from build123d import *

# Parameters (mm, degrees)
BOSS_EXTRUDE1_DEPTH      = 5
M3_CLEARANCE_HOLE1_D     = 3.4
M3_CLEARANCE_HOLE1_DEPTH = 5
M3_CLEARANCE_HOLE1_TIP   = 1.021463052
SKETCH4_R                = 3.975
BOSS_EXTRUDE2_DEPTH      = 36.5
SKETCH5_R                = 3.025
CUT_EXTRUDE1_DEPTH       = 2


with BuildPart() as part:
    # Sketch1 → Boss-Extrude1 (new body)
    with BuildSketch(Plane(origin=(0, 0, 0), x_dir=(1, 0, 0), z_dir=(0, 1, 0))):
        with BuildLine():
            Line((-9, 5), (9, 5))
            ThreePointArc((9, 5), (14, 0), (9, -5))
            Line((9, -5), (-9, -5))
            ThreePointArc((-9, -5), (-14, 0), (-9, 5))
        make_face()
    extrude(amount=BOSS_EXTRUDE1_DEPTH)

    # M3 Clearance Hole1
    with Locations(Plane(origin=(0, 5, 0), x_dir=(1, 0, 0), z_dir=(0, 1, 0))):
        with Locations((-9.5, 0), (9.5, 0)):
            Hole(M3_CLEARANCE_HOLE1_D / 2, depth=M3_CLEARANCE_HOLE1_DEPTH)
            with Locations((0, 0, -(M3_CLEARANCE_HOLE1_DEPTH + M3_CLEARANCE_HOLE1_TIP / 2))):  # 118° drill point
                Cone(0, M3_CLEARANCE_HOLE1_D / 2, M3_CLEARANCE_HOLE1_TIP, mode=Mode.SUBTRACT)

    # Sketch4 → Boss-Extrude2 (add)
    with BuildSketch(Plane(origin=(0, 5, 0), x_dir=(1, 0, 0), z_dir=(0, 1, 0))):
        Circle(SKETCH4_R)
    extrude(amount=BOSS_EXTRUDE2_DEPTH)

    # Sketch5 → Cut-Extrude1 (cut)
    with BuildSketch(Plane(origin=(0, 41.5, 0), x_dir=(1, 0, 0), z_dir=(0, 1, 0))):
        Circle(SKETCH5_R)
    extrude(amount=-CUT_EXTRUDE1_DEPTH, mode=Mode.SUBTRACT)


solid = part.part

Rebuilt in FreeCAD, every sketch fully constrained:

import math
import FreeCAD as App
import Part
import Sketcher

doc = App.newDocument("Part")
body = doc.addObject("PartDesign::Body", "Body")

# Sketch on XZ plane
sketch1 = doc.addObject("Sketcher::SketchObject", "Sketch")
body.addObject(sketch1)
sketch1.AttachmentSupport = (doc.XZ_Plane, [""])
sketch1.MapMode = "FlatFace"
sketch1.addGeometry(Part.LineSegment(App.Vector(9, -5, 0), App.Vector(-9, -5, 0)), False)
sketch1.addGeometry(Part.ArcOfCircle(Part.Circle(App.Vector(-9, 0, 0), App.Vector(0, 0, 1), 5), math.radians(90), math.radians(270)), False)
sketch1.addGeometry(Part.LineSegment(App.Vector(-9, 5, 0), App.Vector(9, 5, 0)), False)
sketch1.addGeometry(Part.ArcOfCircle(Part.Circle(App.Vector(9, 0, 0), App.Vector(0, 0, 1), 5), math.radians(-90), math.radians(90)), False)
sketch1.addConstraint(Sketcher.Constraint("Tangent", 0, 2, 1, 2))
sketch1.addConstraint(Sketcher.Constraint("Tangent", 1, 1, 2, 1))
sketch1.addConstraint(Sketcher.Constraint("Tangent", 2, 2, 3, 2))
sketch1.addConstraint(Sketcher.Constraint("Tangent", 3, 1, 0, 1))
sketch1.addConstraint(Sketcher.Constraint("Horizontal", 0))
sketch1.addConstraint(Sketcher.Constraint("Horizontal", 2))
sketch1.addConstraint(Sketcher.Constraint("Symmetric", 1, 3, 3, 3, -1, 1))
sketch1.addConstraint(Sketcher.Constraint("Radius", 1, 5.0))
sketch1.addConstraint(Sketcher.Constraint("DistanceX", 0, 2, 0, 1, 18.0))
pad1 = doc.addObject("PartDesign::Pad", "Pad")
body.addObject(pad1)
pad1.Profile = sketch1
pad1.Length = 5
pad1.Reversed = True

# Sketch on XZ plane
sketch2 = doc.addObject("Sketcher::SketchObject", "Sketch001")
body.addObject(sketch2)
sketch2.AttachmentSupport = (doc.XZ_Plane, [""])
sketch2.MapMode = "FlatFace"
sketch2.AttachmentOffset = App.Placement(App.Vector(0, 0, -5), App.Rotation())
sketch2.addGeometry(Part.Circle(App.Vector(-9.5, 0, 0), App.Vector(0, 0, 1), 1.7), False)
sketch2.addGeometry(Part.Circle(App.Vector(9.5, 0, 0), App.Vector(0, 0, 1), 1.7), False)
sketch2.addConstraint(Sketcher.Constraint("Equal", 0, 1))
sketch2.addConstraint(Sketcher.Constraint("Symmetric", 0, 3, 1, 3, -1, 1))
sketch2.addConstraint(Sketcher.Constraint("PointOnObject", 0, 3, -1))
sketch2.addConstraint(Sketcher.Constraint("Diameter", 0, 3.4))
sketch2.addConstraint(Sketcher.Constraint("DistanceX", 0, 3, 1, 3, 19.0))
doc.recompute()
hole = doc.addObject("PartDesign::Hole", "Hole")
body.addObject(hole)
hole.Profile = sketch2
hole.ThreadType = "None"
hole.Diameter = 3.4
hole.DepthType = "Dimension"
hole.Depth = 5
hole.DrillPoint = "Angled"
hole.DrillPointAngle = 118
hole.Reversed = True

# Sketch on XZ plane
sketch3 = doc.addObject("Sketcher::SketchObject", "Sketch002")
body.addObject(sketch3)
sketch3.AttachmentSupport = (doc.XZ_Plane, [""])
sketch3.MapMode = "FlatFace"
sketch3.AttachmentOffset = App.Placement(App.Vector(0, 0, -5), App.Rotation())
sketch3.addGeometry(Part.Circle(App.Vector(0, 0, 0), App.Vector(0, 0, 1), 3.975), False)
sketch3.addConstraint(Sketcher.Constraint("Coincident", 0, 3, -1, 1))
sketch3.addConstraint(Sketcher.Constraint("Diameter", 0, 7.95))
pad2 = doc.addObject("PartDesign::Pad", "Pad001")
body.addObject(pad2)
pad2.Profile = sketch3
pad2.Length = 36.5
pad2.Reversed = True

# Sketch on XZ plane
sketch4 = doc.addObject("Sketcher::SketchObject", "Sketch003")
body.addObject(sketch4)
sketch4.AttachmentSupport = (doc.XZ_Plane, [""])
sketch4.MapMode = "FlatFace"
sketch4.AttachmentOffset = App.Placement(App.Vector(0, 0, -41.5), App.Rotation())
sketch4.addGeometry(Part.Circle(App.Vector(0, 0, 0), App.Vector(0, 0, 1), 3.025), False)
sketch4.addConstraint(Sketcher.Constraint("Coincident", 0, 3, -1, 1))
sketch4.addConstraint(Sketcher.Constraint("Diameter", 0, 6.05))
pocket1 = doc.addObject("PartDesign::Pocket", "Pocket")
body.addObject(pocket1)
pocket1.Profile = sketch4
pocket1.Length = 2
pocket1.Reversed = True

doc.recompute()
